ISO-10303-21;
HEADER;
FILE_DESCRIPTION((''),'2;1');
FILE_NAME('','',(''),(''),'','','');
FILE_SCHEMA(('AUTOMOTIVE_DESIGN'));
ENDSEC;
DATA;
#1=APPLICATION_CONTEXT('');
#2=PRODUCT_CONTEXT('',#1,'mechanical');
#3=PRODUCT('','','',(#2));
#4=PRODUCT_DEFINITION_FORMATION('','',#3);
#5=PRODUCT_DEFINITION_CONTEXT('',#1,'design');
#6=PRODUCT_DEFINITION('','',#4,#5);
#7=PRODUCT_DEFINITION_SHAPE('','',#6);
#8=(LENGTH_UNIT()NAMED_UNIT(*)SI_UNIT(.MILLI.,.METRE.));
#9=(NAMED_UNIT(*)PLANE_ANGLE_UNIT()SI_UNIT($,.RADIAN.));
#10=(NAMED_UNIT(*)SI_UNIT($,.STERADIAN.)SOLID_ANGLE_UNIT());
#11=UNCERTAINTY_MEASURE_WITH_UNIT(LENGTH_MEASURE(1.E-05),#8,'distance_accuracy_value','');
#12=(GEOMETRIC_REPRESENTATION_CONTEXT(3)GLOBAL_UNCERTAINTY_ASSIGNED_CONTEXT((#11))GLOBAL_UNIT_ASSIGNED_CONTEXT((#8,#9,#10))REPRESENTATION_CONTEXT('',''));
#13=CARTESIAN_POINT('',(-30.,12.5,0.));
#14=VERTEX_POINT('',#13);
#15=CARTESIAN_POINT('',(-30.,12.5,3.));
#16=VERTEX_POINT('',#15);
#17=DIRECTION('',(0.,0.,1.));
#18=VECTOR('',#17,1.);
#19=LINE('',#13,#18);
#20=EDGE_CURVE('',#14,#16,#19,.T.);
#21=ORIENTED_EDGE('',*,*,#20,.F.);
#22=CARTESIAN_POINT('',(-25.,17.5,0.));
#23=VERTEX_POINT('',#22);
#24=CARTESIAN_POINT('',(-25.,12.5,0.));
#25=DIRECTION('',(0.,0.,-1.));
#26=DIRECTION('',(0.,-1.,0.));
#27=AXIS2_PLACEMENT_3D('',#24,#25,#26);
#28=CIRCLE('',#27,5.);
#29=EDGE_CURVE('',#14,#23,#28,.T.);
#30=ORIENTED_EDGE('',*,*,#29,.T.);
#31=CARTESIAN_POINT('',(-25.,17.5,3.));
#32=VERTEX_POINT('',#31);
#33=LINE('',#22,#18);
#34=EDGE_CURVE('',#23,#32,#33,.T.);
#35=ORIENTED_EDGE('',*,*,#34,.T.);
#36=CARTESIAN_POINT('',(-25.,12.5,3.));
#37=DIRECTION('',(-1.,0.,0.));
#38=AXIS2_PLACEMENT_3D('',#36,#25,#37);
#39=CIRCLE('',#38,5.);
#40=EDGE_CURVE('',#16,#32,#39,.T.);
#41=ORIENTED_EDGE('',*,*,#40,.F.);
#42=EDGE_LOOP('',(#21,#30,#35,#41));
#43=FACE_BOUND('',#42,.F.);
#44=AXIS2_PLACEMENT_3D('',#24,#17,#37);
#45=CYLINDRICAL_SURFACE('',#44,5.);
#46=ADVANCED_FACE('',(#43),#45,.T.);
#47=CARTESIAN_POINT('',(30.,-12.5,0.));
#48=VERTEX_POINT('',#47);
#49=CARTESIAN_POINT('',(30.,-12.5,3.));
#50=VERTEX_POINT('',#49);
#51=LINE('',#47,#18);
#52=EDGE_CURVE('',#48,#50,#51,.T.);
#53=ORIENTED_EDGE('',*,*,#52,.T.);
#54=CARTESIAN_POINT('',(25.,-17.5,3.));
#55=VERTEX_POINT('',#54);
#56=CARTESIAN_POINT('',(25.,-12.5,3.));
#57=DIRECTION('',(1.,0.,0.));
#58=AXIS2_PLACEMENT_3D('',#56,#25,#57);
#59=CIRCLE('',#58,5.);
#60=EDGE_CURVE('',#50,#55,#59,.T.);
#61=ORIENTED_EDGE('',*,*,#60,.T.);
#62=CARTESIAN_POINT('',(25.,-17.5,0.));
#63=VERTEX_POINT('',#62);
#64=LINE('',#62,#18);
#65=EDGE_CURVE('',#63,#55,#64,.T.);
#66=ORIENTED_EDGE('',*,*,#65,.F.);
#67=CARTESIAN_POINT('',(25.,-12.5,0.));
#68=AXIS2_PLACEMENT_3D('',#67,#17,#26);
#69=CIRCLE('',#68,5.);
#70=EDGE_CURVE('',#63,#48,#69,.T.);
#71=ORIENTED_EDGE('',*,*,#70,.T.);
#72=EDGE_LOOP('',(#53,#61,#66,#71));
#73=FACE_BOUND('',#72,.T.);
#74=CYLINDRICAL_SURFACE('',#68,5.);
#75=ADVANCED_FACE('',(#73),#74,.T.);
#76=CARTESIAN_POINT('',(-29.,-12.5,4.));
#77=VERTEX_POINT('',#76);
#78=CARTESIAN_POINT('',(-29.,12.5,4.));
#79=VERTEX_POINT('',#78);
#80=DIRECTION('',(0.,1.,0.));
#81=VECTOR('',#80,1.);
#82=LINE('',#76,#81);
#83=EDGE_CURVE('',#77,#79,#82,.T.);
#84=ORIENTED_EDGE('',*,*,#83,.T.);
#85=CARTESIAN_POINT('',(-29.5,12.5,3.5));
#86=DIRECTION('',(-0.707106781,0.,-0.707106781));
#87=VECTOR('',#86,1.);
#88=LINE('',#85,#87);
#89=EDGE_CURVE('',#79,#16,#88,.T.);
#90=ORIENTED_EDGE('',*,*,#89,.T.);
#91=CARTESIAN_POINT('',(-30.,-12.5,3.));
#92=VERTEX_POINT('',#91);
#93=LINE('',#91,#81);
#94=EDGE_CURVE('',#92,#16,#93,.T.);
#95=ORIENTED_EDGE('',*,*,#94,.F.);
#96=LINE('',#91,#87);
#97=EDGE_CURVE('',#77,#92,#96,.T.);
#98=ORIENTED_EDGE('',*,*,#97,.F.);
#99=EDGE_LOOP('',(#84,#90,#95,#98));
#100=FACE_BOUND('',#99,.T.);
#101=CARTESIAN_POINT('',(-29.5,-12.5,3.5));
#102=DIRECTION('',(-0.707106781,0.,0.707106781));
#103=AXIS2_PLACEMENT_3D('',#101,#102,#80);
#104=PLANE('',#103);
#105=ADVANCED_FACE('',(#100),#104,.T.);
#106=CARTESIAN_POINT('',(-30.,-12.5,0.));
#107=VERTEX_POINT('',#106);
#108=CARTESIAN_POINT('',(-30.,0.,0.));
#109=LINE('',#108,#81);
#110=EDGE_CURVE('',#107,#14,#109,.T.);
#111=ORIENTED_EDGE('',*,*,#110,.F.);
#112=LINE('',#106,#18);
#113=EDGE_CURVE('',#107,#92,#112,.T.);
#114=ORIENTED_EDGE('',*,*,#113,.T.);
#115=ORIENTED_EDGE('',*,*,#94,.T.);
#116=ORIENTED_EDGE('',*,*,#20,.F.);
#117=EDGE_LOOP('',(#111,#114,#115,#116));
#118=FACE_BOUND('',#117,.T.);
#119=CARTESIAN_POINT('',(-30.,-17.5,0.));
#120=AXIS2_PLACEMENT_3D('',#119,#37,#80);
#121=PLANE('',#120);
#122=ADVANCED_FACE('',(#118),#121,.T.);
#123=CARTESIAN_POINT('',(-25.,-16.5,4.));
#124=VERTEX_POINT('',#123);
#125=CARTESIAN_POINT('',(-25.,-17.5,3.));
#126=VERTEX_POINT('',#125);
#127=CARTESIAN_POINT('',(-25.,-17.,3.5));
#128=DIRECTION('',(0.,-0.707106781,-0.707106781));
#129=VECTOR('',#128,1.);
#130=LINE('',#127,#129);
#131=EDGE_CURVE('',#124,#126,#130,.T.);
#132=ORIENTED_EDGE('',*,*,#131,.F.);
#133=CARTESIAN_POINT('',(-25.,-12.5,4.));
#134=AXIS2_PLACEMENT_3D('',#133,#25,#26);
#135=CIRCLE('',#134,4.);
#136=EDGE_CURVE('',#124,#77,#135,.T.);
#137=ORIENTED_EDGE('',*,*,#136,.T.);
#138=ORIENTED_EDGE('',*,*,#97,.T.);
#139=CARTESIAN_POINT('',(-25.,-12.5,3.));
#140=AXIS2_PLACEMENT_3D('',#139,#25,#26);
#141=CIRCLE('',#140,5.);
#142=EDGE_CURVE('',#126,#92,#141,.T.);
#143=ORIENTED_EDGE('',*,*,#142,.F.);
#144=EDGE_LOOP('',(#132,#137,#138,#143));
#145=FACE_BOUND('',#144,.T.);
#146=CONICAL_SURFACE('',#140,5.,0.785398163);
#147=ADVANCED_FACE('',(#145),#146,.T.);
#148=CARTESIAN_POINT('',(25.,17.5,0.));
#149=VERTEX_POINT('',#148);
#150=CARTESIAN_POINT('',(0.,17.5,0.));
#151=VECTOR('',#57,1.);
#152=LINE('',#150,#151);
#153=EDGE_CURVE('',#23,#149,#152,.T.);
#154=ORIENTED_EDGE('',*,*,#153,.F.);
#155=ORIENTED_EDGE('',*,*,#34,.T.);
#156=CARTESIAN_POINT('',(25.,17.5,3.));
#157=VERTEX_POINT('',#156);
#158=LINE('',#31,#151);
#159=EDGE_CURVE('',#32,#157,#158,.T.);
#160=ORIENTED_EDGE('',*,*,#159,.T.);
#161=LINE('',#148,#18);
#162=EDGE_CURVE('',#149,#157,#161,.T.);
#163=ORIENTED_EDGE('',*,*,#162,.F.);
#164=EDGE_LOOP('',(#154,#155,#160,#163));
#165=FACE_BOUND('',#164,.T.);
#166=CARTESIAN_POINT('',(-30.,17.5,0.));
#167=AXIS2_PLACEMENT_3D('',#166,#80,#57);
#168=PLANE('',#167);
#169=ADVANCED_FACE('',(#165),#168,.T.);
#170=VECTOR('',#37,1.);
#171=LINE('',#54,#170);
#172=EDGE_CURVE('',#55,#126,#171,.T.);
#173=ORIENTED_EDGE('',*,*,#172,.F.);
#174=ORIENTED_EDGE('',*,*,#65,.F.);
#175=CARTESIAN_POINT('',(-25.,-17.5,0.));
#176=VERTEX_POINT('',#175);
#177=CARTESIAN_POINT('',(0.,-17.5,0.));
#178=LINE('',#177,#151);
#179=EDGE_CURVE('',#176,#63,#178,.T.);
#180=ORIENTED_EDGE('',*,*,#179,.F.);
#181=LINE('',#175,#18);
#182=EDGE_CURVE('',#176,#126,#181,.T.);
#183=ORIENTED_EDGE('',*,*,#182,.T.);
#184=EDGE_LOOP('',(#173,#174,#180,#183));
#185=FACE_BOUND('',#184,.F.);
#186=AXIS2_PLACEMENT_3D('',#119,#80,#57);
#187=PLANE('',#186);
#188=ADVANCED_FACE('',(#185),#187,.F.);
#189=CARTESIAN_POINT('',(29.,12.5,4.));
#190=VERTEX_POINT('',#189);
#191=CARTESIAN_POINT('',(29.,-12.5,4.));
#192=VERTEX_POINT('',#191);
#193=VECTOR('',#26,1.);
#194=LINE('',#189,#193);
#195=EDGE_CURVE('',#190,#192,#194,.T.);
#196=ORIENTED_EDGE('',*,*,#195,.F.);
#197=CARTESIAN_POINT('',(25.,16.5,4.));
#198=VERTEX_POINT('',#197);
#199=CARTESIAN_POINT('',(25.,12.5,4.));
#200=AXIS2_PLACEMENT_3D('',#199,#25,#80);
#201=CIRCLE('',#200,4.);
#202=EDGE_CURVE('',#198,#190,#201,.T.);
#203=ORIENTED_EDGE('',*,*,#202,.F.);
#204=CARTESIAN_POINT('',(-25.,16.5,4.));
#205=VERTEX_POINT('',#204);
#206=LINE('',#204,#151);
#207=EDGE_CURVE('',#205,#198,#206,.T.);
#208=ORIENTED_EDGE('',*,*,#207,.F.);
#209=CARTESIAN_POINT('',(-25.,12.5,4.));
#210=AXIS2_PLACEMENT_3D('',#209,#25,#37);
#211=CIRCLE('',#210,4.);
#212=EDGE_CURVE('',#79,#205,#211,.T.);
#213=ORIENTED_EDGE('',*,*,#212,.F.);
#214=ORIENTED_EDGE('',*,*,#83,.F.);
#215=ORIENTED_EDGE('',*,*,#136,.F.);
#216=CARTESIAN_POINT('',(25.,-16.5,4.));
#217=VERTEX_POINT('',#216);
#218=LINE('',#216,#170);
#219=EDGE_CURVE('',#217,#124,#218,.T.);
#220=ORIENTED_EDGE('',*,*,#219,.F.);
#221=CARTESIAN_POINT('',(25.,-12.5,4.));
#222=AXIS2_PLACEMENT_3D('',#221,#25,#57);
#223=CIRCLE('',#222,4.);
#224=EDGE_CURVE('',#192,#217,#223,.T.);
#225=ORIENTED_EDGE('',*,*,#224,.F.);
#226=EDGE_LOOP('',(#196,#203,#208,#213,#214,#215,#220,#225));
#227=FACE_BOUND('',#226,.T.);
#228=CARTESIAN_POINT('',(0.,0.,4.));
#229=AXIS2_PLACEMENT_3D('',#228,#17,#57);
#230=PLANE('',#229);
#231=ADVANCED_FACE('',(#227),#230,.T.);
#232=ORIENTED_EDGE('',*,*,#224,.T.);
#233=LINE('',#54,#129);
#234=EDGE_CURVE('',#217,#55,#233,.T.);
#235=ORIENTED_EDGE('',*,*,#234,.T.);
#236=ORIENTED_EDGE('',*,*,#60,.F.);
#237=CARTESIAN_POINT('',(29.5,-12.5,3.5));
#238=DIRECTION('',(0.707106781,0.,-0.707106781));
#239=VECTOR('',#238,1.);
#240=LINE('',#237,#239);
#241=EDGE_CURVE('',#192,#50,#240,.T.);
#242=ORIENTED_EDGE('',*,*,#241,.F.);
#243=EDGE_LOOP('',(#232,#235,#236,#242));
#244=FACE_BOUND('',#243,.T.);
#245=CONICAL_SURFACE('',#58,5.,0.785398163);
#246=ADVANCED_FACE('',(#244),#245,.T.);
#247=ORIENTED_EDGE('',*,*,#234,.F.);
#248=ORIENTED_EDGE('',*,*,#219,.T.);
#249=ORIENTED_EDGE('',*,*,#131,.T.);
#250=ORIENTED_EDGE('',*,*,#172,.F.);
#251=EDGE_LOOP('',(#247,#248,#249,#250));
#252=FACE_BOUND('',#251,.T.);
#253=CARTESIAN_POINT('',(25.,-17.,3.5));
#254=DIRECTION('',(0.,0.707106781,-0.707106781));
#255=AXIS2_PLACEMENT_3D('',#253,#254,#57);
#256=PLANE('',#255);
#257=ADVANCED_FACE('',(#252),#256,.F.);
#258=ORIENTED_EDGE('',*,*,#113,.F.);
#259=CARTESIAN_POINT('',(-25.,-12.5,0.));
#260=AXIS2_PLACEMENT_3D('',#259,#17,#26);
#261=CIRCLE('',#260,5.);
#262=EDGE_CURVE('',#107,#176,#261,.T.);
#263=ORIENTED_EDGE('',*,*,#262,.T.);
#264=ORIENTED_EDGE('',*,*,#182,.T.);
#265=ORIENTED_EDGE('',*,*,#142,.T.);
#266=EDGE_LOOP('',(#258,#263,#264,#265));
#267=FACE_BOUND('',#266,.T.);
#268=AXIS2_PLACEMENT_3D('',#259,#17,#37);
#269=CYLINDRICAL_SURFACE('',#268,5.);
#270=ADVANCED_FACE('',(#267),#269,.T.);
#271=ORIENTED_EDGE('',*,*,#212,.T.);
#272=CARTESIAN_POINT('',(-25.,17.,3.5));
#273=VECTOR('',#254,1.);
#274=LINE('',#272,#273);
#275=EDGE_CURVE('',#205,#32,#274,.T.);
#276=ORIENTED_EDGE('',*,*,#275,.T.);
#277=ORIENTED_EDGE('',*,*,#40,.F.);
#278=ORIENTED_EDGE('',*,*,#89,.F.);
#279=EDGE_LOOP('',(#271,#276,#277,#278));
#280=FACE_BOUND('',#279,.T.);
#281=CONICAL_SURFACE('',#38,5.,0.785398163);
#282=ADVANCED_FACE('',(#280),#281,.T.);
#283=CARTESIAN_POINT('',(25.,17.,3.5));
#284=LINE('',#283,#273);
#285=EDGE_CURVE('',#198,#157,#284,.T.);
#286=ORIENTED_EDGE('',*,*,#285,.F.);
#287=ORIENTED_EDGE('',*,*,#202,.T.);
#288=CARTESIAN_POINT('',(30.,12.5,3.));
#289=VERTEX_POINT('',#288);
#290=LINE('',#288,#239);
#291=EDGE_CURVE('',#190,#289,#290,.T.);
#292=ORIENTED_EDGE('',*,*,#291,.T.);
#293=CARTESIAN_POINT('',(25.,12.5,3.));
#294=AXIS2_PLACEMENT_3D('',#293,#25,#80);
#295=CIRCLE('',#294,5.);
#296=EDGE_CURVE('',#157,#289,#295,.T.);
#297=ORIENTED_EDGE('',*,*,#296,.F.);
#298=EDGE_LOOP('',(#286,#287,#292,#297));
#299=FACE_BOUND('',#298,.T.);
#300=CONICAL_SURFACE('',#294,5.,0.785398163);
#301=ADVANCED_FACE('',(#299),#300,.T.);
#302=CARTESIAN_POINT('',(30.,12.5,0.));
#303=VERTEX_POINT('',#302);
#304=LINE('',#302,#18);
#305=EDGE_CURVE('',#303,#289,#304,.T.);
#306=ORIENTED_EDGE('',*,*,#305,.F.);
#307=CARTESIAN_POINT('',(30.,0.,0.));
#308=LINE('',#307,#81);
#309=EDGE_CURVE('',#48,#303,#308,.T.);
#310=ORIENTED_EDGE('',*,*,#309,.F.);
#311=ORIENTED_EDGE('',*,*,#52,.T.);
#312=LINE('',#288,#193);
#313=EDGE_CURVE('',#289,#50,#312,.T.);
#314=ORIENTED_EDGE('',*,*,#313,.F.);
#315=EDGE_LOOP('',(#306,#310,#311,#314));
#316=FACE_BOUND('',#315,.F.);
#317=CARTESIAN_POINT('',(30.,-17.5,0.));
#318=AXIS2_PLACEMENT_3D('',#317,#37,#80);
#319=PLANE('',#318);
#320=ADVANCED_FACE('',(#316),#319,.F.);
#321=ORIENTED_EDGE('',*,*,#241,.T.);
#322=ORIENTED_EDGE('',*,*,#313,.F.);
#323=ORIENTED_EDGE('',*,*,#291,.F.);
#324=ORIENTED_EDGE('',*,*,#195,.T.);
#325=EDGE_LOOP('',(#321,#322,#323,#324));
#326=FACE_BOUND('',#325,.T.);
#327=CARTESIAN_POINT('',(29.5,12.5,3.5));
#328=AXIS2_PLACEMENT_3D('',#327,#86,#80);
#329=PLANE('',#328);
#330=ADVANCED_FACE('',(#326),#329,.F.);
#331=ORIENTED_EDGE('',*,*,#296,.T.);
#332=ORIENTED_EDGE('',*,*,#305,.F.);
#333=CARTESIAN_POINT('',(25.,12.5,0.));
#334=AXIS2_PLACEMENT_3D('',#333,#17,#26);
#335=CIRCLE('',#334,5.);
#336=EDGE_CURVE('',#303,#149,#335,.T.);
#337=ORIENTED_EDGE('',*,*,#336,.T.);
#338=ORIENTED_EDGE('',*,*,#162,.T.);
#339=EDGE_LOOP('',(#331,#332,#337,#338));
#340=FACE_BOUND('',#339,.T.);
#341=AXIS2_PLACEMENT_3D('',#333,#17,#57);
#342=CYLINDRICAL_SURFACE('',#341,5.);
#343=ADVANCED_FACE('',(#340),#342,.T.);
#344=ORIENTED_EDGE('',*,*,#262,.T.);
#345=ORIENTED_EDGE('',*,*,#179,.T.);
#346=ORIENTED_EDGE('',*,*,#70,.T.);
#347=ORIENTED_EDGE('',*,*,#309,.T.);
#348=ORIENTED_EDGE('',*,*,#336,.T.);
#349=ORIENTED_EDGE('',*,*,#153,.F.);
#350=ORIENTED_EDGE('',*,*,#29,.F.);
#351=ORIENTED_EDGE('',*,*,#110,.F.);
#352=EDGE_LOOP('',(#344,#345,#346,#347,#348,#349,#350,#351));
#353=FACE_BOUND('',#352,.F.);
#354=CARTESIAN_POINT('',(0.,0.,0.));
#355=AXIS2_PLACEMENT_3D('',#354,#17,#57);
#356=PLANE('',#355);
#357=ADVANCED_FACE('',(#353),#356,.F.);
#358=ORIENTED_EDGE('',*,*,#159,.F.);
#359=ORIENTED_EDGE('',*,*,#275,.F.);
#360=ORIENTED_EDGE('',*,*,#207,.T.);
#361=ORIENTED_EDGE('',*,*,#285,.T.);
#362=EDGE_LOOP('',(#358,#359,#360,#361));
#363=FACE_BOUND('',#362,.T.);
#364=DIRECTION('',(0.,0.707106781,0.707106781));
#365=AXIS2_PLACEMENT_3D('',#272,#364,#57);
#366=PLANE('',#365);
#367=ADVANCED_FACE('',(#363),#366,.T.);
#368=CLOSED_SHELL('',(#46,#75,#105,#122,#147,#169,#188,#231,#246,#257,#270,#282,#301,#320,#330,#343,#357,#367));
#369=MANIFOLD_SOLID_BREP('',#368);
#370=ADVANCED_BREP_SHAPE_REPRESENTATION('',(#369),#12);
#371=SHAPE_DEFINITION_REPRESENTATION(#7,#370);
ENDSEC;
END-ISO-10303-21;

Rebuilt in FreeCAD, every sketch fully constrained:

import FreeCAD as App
import Part
import Sketcher


def edges_at(feature, points):
    """Names of the edges that pass closest to the given points."""
    edges = feature.Shape.Edges
    near = lambda p: min(range(len(edges)), key=lambda i: edges[i].distToShape(Part.Vertex(*p))[0])
    return sorted({f"Edge{near(p) + 1}" for p in points})

doc = App.newDocument("Part")
params = doc.addObject("Spreadsheet::Sheet", "Params")
for row, (alias, value) in enumerate([
    ("sketch1_width", "60 mm"),
    ("sketch1_height", "35 mm"),
    ("pad1_length", "4 mm"),
    ("fillet_radius", "5 mm"),
    ("chamfer_size", "1 mm"),
], start=1):
    params.set(f"A{row}", alias)
    params.set(f"B{row}", "=" + value)
    params.setAlias(f"B{row}", alias)

body = doc.addObject("PartDesign::Body", "Body")

# Sketch on XY plane
sketch1 = body.newObject("Sketcher::SketchObject", "Sketch")
sketch1.AttachmentSupport = (doc.getObject("XY_Plane"), [""])
sketch1.MapMode = "FlatFace"
sketch1.addGeometry([
    Part.LineSegment(App.Vector(-30, 18, 0), App.Vector(-30, -18, 0)),
    Part.LineSegment(App.Vector(-30, -18, 0), App.Vector(30, -18, 0)),
    Part.LineSegment(App.Vector(30, -18, 0), App.Vector(30, 18, 0)),
    Part.LineSegment(App.Vector(30, 18, 0), App.Vector(-30, 18, 0)),
], False)
sketch1.addConstraint([
    Sketcher.Constraint("Coincident", 0, 2, 1, 1),
    Sketcher.Constraint("Coincident", 1, 2, 2, 1),
    Sketcher.Constraint("Coincident", 2, 2, 3, 1),
    Sketcher.Constraint("Coincident", 3, 2, 0, 1),
    Sketcher.Constraint("Vertical", 0),
    Sketcher.Constraint("Horizontal", 1),
    Sketcher.Constraint("Vertical", 2),
    Sketcher.Constraint("Horizontal", 3),
    Sketcher.Constraint("Symmetric", 0, 2, 2, 2, -1, 1),
    Sketcher.Constraint("DistanceX", 1, 1, 1, 2, 60.0),
    Sketcher.Constraint("DistanceY", 0, 2, 0, 1, 35.0),
])
sketch1.setExpression("Constraints[9]", "Params.sketch1_width")
sketch1.setExpression("Constraints[10]", "Params.sketch1_height")
pad1 = body.newObject("PartDesign::Pad", "Pad")
pad1.Profile = sketch1
pad1.setExpression("Length", "Params.pad1_length")
doc.recompute()

fillet = body.newObject("PartDesign::Fillet", "Fillet")
fillet.Base = (pad1, edges_at(pad1, [
    (-30, 17.5, 2),
    (-30, -17.5, 2),
    (30, -17.5, 2),
    (30, 17.5, 2),
]))
fillet.setExpression("Radius", "Params.fillet_radius")
doc.recompute()

chamfer = body.newObject("PartDesign::Chamfer", "Chamfer")
chamfer.Base = (fillet, edges_at(fillet, [
    (0, 17.5, 4),
    (-30, 0, 4),
    (0, -17.5, 4),
    (30, 0, 4),
]))
chamfer.setExpression("Size", "Params.chamfer_size")

doc.recompute()
